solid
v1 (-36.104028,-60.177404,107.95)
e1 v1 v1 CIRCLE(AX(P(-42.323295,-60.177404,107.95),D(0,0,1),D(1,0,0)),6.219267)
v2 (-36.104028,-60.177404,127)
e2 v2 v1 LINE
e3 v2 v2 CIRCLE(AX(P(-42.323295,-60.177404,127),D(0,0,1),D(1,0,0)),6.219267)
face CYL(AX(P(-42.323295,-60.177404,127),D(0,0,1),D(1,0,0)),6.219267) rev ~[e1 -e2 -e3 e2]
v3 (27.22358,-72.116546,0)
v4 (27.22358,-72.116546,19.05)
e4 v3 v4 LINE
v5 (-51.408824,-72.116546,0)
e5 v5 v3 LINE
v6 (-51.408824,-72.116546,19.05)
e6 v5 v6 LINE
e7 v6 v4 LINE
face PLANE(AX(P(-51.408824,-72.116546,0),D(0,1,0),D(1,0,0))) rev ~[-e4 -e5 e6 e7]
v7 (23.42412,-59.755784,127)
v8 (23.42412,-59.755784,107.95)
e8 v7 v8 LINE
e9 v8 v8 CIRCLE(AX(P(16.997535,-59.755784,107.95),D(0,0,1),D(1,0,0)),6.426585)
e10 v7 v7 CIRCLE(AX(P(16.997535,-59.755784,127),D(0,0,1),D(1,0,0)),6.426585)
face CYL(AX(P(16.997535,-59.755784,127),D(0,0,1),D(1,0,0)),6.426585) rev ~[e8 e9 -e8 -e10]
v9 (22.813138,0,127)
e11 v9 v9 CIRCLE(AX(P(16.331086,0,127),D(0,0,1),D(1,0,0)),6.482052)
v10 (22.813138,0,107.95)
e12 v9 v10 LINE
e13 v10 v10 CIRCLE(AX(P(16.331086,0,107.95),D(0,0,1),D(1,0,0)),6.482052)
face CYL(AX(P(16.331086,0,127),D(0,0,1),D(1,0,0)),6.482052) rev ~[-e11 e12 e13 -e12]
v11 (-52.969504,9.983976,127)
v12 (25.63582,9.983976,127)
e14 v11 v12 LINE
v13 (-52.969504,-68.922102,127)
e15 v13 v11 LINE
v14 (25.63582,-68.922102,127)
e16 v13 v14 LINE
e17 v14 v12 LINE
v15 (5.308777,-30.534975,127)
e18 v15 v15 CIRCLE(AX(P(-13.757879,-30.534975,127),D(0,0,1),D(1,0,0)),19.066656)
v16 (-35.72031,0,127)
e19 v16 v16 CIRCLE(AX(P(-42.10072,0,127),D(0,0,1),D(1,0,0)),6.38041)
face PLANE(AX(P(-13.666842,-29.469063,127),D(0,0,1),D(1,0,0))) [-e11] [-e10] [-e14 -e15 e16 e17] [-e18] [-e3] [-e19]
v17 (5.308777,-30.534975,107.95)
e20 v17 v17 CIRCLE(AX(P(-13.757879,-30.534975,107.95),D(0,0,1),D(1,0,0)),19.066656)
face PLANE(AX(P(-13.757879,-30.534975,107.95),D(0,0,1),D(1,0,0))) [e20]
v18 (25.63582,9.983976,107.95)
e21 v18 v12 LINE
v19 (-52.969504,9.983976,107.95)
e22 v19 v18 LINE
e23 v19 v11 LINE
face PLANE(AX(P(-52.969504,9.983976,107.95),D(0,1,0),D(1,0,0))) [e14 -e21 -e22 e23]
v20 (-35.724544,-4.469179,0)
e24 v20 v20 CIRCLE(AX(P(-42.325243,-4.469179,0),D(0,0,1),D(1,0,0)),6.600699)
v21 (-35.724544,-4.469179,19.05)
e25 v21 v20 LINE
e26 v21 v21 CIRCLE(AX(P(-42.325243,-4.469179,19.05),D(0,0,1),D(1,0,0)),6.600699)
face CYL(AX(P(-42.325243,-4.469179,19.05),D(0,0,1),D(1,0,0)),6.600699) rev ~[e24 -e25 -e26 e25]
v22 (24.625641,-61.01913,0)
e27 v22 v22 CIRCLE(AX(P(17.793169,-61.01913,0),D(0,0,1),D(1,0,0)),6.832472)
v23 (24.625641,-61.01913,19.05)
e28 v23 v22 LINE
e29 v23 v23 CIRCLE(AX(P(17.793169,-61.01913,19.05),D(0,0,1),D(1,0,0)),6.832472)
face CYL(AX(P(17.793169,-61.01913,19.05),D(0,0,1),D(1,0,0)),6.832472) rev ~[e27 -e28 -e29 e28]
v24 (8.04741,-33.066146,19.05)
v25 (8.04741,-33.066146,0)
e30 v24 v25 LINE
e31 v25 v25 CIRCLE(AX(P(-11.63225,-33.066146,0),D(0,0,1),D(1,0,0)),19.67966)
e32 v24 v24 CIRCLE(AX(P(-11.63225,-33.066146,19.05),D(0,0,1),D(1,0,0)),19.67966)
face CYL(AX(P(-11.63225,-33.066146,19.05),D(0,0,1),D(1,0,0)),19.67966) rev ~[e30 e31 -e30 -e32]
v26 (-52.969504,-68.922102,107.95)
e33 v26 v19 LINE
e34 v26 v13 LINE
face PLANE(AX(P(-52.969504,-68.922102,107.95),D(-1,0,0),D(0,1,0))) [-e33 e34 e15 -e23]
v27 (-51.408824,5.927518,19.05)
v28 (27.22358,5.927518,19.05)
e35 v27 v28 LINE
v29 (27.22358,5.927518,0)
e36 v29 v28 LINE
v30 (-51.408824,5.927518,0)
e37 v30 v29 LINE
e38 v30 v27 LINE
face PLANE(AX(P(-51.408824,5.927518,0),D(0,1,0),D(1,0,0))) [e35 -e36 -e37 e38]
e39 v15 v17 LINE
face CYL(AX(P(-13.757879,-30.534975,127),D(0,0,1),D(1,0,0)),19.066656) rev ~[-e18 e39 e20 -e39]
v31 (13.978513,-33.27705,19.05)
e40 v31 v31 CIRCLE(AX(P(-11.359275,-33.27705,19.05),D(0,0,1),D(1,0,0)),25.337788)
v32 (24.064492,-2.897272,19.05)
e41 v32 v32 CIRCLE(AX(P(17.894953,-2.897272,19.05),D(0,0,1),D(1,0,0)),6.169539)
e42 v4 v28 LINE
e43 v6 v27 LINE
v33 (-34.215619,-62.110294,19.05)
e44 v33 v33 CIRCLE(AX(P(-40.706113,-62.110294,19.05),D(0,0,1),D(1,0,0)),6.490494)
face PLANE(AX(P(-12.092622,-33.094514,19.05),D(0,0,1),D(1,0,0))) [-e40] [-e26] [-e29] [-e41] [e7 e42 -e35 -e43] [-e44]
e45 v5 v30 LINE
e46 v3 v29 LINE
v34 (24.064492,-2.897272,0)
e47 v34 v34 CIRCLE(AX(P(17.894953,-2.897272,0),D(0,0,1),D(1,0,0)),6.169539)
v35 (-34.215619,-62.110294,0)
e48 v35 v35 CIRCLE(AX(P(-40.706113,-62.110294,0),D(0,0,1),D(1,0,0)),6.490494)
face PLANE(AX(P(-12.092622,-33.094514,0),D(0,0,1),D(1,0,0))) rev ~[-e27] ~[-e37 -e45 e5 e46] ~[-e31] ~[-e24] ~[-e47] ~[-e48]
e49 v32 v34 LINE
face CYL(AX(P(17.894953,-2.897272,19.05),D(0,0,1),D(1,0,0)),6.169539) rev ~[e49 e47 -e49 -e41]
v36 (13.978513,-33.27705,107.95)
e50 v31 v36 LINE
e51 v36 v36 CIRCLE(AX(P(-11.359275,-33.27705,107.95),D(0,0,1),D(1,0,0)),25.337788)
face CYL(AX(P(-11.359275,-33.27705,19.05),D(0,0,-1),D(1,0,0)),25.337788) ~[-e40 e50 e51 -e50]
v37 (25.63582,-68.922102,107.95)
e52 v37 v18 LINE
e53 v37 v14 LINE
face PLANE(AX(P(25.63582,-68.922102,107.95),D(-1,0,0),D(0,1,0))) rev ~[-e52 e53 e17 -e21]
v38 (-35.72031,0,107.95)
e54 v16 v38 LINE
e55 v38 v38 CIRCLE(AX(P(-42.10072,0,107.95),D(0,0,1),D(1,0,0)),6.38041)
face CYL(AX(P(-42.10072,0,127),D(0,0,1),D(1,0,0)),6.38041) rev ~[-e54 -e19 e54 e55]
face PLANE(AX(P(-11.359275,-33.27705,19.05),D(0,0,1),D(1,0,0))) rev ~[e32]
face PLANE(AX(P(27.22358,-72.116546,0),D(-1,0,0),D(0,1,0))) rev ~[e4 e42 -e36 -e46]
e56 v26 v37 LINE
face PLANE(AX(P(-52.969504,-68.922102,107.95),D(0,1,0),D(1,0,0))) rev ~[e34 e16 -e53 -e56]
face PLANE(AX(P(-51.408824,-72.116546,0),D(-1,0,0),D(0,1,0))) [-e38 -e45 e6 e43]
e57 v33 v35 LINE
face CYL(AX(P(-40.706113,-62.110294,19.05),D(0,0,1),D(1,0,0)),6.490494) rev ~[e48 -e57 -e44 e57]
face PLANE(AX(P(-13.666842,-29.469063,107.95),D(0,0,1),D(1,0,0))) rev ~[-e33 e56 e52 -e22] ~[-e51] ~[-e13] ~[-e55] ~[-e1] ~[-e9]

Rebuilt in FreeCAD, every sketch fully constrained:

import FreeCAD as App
import Part
import Sketcher
from FreeCAD import Vector
Q = App.Units.Quantity


def add_polygon(sketch, points):
    """Adds a closed chain of lines whose ends are joined by coincident constraints."""
    first, n = sketch.GeometryCount, len(points)
    for a, b in zip(points, points[1:] + points[:1]):
        sketch.addGeometry(Part.LineSegment(App.Vector(*a, 0), App.Vector(*b, 0)), False)
    for i in range(n):
        sketch.addConstraint(Sketcher.Constraint("Coincident", first + i, 2, first + (i + 1) % n, 1))

doc = App.newDocument("Part")
body = doc.addObject("PartDesign::Body", "Body")

# Sketch on XY plane
sketch1 = body.newObject("Sketcher::SketchObject", "Sketch")
sketch1.AttachmentSupport = (doc.getObject("XY_Plane"), [""])
sketch1.MapMode = "FlatFace"
add_polygon(sketch1, [(-51.408824, 5.927518), (-51.408824, -72.116546), (27.22358, -72.116546), (27.22358, 5.927518)])  # lines 0-3
sketch1.addConstraint([
    Sketcher.Constraint("Vertical", 0),
    Sketcher.Constraint("Horizontal", 1),
    Sketcher.Constraint("Vertical", 2),
    Sketcher.Constraint("Horizontal", 3),
    Sketcher.Constraint("DistanceX", 1, 1, 1, 2, Q("78.632404 mm")),
    Sketcher.Constraint("DistanceY", 0, 2, 0, 1, Q("78.044064 mm")),
    Sketcher.Constraint("DistanceX", -1, 1, 1, 2, Q("27.22358 mm")),
    Sketcher.Constraint("DistanceY", 0, 2, -1, 1, Q("72.116546 mm")),
])
pad1 = body.newObject("PartDesign::Pad", "Pad")
pad1.Profile = sketch1
pad1.Length = Q("0.75 in")

# Sketch on XY plane
sketch2 = body.newObject("Sketcher::SketchObject", "Sketch001")
sketch2.AttachmentSupport = (doc.getObject("XY_Plane"), [""])
sketch2.MapMode = "FlatFace"
sketch2.AttachmentOffset = App.Placement(Vector(0, 0, 0.75 * 25.4), App.Rotation())
sketch2.addGeometry(Part.Circle(Vector(-11.63225, -33.066146, 0), Vector(0, 0, 1), 19.67966), False)
sketch2.addConstraint([
    Sketcher.Constraint("Diameter", 0, Q("39.35932 mm")),
    Sketcher.Constraint("DistanceX", 0, 3, -1, 1, Q("11.63225 mm")),
    Sketcher.Constraint("DistanceY", 0, 3, -1, 1, Q("33.066146 mm")),
])
pocket1 = body.newObject("PartDesign::Pocket", "Pocket")
pocket1.Profile = sketch2
pocket1.Length = Q("1 in")

# Sketch on XY plane
sketch3 = body.newObject("Sketcher::SketchObject", "Sketch002")
sketch3.AttachmentSupport = (doc.getObject("XY_Plane"), [""])
sketch3.MapMode = "FlatFace"
sketch3.AttachmentOffset = App.Placement(Vector(0, 0, 0.75 * 25.4), App.Rotation())
sketch3.addGeometry(Part.Circle(Vector(-11.359275, -33.27705, 0), Vector(0, 0, 1), 25.337788), False)
sketch3.addConstraint([
    Sketcher.Constraint("Diameter", 0, Q("50.675576 mm")),
    Sketcher.Constraint("DistanceY", 0, 3, -1, 1, Q("33.27705 mm")),
    Sketcher.Constraint("DistanceX", 0, 3, -1, 1, Q("11.359275 mm")),
])
pad2 = body.newObject("PartDesign::Pad", "Pad001")
pad2.Profile = sketch3
pad2.Length = Q("3.5 in")

# Sketch on XY plane
sketch4 = body.newObject("Sketcher::SketchObject", "Sketch003")
sketch4.AttachmentSupport = (doc.getObject("XY_Plane"), [""])
sketch4.MapMode = "FlatFace"
sketch4.AttachmentOffset = App.Placement(Vector(0, 0, 4.25 * 25.4), App.Rotation())
add_polygon(sketch4, [(-52.969504, 9.983976), (-52.969504, -68.922102), (25.63582, -68.922102), (25.63582, 9.983976)])  # lines 0-3
sketch4.addConstraint([
    Sketcher.Constraint("Vertical", 0),
    Sketcher.Constraint("Horizontal", 1),
    Sketcher.Constraint("Vertical", 2),
    Sketcher.Constraint("Horizontal", 3),
    Sketcher.Constraint("DistanceY", 0, 2, -1, 1, Q("68.922102 mm")),
    Sketcher.Constraint("DistanceX", 1, 1, 1, 2, Q("78.605324 mm")),
    Sketcher.Constraint("DistanceY", 0, 2, 0, 1, Q("78.906078 mm")),
    Sketcher.Constraint("DistanceX", -1, 1, 1, 2, Q("25.63582 mm")),
])
pad3 = body.newObject("PartDesign::Pad", "Pad002")
pad3.Profile = sketch4
pad3.Length = Q("0.75 in")

# Sketch on XY plane
sketch5 = body.newObject("Sketcher::SketchObject", "Sketch004")
sketch5.AttachmentSupport = (doc.getObject("XY_Plane"), [""])
sketch5.MapMode = "FlatFace"
sketch5.AttachmentOffset = App.Placement(Vector(0, 0, 5 * 25.4), App.Rotation())
sketch5.addGeometry(Part.Circle(Vector(-13.757879, -30.534975, 0), Vector(0, 0, 1), 19.066656), False)
sketch5.addConstraint([
    Sketcher.Constraint("Diameter", 0, Q("38.133312 mm")),
    Sketcher.Constraint("DistanceX", 0, 3, -1, 1, Q("13.757879 mm")),
    Sketcher.Constraint("DistanceY", 0, 3, -1, 1, Q("30.534975 mm")),
])
pocket2 = body.newObject("PartDesign::Pocket", "Pocket001")
pocket2.Profile = sketch5
pocket2.Length = Q("0.75 in")

# Sketch on XY plane
sketch6 = body.newObject("Sketcher::SketchObject", "Sketch005")
sketch6.AttachmentSupport = (doc.getObject("XY_Plane"), [""])
sketch6.MapMode = "FlatFace"
sketch6.AttachmentOffset = App.Placement(Vector(0, 0, 0.75 * 25.4), App.Rotation())
sketch6.addGeometry(Part.Circle(Vector(17.793169, -61.01913, 0), Vector(0, 0, 1), 6.832472), False)
sketch6.addConstraint([
    Sketcher.Constraint("Diameter", 0, Q("13.664944 mm")),
    Sketcher.Constraint("DistanceX", -1, 1, 0, 3, Q("17.793169 mm")),
    Sketcher.Constraint("DistanceY", 0, 3, -1, 1, Q("61.01913 mm")),
])
pocket3 = body.newObject("PartDesign::Pocket", "Pocket002")
pocket3.Profile = sketch6
pocket3.Length = Q("12 in")

# Sketch on XY plane
sketch7 = body.newObject("Sketcher::SketchObject", "Sketch006")
sketch7.AttachmentSupport = (doc.getObject("XY_Plane"), [""])
sketch7.MapMode = "FlatFace"
sketch7.AttachmentOffset = App.Placement(Vector(0, 0, 0.75 * 25.4), App.Rotation())
sketch7.addGeometry(Part.Circle(Vector(17.894953, -2.897272, 0), Vector(0, 0, 1), 6.169539), False)
sketch7.addConstraint([
    Sketcher.Constraint("Diameter", 0, Q("12.339078 mm")),
    Sketcher.Constraint("DistanceX", -1, 1, 0, 3, Q("17.894953 mm")),
    Sketcher.Constraint("DistanceY", 0, 3, -1, 1, Q("2.897272 mm")),
])
pocket4 = body.newObject("PartDesign::Pocket", "Pocket003")
pocket4.Profile = sketch7
pocket4.Length = Q("1 in")

# Sketch on XY plane
sketch8 = body.newObject("Sketcher::SketchObject", "Sketch007")
sketch8.AttachmentSupport = (doc.getObject("XY_Plane"), [""])
sketch8.MapMode = "FlatFace"
sketch8.AttachmentOffset = App.Placement(Vector(0, 0, 0.75 * 25.4), App.Rotation())
sketch8.addGeometry(Part.Circle(Vector(-42.325243, -4.469179, 0), Vector(0, 0, 1), 6.600699), False)
sketch8.addConstraint([
    Sketcher.Constraint("Diameter", 0, Q("13.201398 mm")),
    Sketcher.Constraint("DistanceY", 0, 3, -1, 1, Q("4.469179 mm")),
    Sketcher.Constraint("DistanceX", 0, 3, -1, 1, Q("42.325243 mm")),
])
pocket5 = body.newObject("PartDesign::Pocket", "Pocket004")
pocket5.Profile = sketch8
pocket5.Length = Q("1 in")

# Sketch on XY plane
sketch9 = body.newObject("Sketcher::SketchObject", "Sketch008")
sketch9.AttachmentSupport = (doc.getObject("XY_Plane"), [""])
sketch9.MapMode = "FlatFace"
sketch9.AttachmentOffset = App.Placement(Vector(0, 0, 0.75 * 25.4), App.Rotation())
sketch9.addGeometry(Part.Circle(Vector(-40.706113, -62.110294, 0), Vector(0, 0, 1), 6.490494), False)
sketch9.addConstraint([
    Sketcher.Constraint("Diameter", 0, Q("12.980988 mm")),
    Sketcher.Constraint("DistanceX", 0, 3, -1, 1, Q("40.706113 mm")),
    Sketcher.Constraint("DistanceY", 0, 3, -1, 1, Q("62.110294 mm")),
])
pocket6 = body.newObject("PartDesign::Pocket", "Pocket005")
pocket6.Profile = sketch9
pocket6.Length = Q("1 in")

# Sketch on XY plane
sketch10 = body.newObject("Sketcher::SketchObject", "Sketch009")
sketch10.AttachmentSupport = (doc.getObject("XY_Plane"), [""])
sketch10.MapMode = "FlatFace"
sketch10.AttachmentOffset = App.Placement(Vector(0, 0, 5 * 25.4), App.Rotation())
sketch10.addGeometry([
    Part.Circle(Vector(16.331086, 0, 0), Vector(0, 0, 1), 6.482052),
    Part.Circle(Vector(16.997535, -59.755784, 0), Vector(0, 0, 1), 6.426585),
    Part.Circle(Vector(-42.323295, -60.177404, 0), Vector(0, 0, 1), 6.219267),
    Part.Circle(Vector(-42.10072, 0, 0), Vector(0, 0, 1), 6.38041),
], False)
sketch10.addConstraint([
    Sketcher.Constraint("PointOnObject", 0, 3, -1),
    Sketcher.Constraint("PointOnObject", 3, 3, -1),
    Sketcher.Constraint("Diameter", 1, Q("12.85317 mm")),
    Sketcher.Constraint("Diameter", 3, Q("12.76082 mm")),
    Sketcher.Constraint("Diameter", 0, Q("12.964104 mm")),
    Sketcher.Constraint("Diameter", 2, Q("12.438534 mm")),
    Sketcher.Constraint("DistanceX", 3, 3, -1, 1, Q("42.10072 mm")),
    Sketcher.Constraint("DistanceX", 0, 3, 1, 3, Q("0.666449 mm")),
    Sketcher.Constraint("DistanceX", 2, 3, 1, 3, Q("59.32083 mm")),
    Sketcher.Constraint("DistanceY", 2, 3, 1, 3, Q("0.42162 mm")),
    Sketcher.Constraint("DistanceX", -1, 1, 0, 3, Q("16.331086 mm")),
    Sketcher.Constraint("DistanceY", 1, 3, -1, 1, Q("59.755784 mm")),
])
pocket7 = body.newObject("PartDesign::Pocket", "Pocket006")
pocket7.Profile = sketch10
pocket7.Length = Q("1 in")

doc.recompute()
